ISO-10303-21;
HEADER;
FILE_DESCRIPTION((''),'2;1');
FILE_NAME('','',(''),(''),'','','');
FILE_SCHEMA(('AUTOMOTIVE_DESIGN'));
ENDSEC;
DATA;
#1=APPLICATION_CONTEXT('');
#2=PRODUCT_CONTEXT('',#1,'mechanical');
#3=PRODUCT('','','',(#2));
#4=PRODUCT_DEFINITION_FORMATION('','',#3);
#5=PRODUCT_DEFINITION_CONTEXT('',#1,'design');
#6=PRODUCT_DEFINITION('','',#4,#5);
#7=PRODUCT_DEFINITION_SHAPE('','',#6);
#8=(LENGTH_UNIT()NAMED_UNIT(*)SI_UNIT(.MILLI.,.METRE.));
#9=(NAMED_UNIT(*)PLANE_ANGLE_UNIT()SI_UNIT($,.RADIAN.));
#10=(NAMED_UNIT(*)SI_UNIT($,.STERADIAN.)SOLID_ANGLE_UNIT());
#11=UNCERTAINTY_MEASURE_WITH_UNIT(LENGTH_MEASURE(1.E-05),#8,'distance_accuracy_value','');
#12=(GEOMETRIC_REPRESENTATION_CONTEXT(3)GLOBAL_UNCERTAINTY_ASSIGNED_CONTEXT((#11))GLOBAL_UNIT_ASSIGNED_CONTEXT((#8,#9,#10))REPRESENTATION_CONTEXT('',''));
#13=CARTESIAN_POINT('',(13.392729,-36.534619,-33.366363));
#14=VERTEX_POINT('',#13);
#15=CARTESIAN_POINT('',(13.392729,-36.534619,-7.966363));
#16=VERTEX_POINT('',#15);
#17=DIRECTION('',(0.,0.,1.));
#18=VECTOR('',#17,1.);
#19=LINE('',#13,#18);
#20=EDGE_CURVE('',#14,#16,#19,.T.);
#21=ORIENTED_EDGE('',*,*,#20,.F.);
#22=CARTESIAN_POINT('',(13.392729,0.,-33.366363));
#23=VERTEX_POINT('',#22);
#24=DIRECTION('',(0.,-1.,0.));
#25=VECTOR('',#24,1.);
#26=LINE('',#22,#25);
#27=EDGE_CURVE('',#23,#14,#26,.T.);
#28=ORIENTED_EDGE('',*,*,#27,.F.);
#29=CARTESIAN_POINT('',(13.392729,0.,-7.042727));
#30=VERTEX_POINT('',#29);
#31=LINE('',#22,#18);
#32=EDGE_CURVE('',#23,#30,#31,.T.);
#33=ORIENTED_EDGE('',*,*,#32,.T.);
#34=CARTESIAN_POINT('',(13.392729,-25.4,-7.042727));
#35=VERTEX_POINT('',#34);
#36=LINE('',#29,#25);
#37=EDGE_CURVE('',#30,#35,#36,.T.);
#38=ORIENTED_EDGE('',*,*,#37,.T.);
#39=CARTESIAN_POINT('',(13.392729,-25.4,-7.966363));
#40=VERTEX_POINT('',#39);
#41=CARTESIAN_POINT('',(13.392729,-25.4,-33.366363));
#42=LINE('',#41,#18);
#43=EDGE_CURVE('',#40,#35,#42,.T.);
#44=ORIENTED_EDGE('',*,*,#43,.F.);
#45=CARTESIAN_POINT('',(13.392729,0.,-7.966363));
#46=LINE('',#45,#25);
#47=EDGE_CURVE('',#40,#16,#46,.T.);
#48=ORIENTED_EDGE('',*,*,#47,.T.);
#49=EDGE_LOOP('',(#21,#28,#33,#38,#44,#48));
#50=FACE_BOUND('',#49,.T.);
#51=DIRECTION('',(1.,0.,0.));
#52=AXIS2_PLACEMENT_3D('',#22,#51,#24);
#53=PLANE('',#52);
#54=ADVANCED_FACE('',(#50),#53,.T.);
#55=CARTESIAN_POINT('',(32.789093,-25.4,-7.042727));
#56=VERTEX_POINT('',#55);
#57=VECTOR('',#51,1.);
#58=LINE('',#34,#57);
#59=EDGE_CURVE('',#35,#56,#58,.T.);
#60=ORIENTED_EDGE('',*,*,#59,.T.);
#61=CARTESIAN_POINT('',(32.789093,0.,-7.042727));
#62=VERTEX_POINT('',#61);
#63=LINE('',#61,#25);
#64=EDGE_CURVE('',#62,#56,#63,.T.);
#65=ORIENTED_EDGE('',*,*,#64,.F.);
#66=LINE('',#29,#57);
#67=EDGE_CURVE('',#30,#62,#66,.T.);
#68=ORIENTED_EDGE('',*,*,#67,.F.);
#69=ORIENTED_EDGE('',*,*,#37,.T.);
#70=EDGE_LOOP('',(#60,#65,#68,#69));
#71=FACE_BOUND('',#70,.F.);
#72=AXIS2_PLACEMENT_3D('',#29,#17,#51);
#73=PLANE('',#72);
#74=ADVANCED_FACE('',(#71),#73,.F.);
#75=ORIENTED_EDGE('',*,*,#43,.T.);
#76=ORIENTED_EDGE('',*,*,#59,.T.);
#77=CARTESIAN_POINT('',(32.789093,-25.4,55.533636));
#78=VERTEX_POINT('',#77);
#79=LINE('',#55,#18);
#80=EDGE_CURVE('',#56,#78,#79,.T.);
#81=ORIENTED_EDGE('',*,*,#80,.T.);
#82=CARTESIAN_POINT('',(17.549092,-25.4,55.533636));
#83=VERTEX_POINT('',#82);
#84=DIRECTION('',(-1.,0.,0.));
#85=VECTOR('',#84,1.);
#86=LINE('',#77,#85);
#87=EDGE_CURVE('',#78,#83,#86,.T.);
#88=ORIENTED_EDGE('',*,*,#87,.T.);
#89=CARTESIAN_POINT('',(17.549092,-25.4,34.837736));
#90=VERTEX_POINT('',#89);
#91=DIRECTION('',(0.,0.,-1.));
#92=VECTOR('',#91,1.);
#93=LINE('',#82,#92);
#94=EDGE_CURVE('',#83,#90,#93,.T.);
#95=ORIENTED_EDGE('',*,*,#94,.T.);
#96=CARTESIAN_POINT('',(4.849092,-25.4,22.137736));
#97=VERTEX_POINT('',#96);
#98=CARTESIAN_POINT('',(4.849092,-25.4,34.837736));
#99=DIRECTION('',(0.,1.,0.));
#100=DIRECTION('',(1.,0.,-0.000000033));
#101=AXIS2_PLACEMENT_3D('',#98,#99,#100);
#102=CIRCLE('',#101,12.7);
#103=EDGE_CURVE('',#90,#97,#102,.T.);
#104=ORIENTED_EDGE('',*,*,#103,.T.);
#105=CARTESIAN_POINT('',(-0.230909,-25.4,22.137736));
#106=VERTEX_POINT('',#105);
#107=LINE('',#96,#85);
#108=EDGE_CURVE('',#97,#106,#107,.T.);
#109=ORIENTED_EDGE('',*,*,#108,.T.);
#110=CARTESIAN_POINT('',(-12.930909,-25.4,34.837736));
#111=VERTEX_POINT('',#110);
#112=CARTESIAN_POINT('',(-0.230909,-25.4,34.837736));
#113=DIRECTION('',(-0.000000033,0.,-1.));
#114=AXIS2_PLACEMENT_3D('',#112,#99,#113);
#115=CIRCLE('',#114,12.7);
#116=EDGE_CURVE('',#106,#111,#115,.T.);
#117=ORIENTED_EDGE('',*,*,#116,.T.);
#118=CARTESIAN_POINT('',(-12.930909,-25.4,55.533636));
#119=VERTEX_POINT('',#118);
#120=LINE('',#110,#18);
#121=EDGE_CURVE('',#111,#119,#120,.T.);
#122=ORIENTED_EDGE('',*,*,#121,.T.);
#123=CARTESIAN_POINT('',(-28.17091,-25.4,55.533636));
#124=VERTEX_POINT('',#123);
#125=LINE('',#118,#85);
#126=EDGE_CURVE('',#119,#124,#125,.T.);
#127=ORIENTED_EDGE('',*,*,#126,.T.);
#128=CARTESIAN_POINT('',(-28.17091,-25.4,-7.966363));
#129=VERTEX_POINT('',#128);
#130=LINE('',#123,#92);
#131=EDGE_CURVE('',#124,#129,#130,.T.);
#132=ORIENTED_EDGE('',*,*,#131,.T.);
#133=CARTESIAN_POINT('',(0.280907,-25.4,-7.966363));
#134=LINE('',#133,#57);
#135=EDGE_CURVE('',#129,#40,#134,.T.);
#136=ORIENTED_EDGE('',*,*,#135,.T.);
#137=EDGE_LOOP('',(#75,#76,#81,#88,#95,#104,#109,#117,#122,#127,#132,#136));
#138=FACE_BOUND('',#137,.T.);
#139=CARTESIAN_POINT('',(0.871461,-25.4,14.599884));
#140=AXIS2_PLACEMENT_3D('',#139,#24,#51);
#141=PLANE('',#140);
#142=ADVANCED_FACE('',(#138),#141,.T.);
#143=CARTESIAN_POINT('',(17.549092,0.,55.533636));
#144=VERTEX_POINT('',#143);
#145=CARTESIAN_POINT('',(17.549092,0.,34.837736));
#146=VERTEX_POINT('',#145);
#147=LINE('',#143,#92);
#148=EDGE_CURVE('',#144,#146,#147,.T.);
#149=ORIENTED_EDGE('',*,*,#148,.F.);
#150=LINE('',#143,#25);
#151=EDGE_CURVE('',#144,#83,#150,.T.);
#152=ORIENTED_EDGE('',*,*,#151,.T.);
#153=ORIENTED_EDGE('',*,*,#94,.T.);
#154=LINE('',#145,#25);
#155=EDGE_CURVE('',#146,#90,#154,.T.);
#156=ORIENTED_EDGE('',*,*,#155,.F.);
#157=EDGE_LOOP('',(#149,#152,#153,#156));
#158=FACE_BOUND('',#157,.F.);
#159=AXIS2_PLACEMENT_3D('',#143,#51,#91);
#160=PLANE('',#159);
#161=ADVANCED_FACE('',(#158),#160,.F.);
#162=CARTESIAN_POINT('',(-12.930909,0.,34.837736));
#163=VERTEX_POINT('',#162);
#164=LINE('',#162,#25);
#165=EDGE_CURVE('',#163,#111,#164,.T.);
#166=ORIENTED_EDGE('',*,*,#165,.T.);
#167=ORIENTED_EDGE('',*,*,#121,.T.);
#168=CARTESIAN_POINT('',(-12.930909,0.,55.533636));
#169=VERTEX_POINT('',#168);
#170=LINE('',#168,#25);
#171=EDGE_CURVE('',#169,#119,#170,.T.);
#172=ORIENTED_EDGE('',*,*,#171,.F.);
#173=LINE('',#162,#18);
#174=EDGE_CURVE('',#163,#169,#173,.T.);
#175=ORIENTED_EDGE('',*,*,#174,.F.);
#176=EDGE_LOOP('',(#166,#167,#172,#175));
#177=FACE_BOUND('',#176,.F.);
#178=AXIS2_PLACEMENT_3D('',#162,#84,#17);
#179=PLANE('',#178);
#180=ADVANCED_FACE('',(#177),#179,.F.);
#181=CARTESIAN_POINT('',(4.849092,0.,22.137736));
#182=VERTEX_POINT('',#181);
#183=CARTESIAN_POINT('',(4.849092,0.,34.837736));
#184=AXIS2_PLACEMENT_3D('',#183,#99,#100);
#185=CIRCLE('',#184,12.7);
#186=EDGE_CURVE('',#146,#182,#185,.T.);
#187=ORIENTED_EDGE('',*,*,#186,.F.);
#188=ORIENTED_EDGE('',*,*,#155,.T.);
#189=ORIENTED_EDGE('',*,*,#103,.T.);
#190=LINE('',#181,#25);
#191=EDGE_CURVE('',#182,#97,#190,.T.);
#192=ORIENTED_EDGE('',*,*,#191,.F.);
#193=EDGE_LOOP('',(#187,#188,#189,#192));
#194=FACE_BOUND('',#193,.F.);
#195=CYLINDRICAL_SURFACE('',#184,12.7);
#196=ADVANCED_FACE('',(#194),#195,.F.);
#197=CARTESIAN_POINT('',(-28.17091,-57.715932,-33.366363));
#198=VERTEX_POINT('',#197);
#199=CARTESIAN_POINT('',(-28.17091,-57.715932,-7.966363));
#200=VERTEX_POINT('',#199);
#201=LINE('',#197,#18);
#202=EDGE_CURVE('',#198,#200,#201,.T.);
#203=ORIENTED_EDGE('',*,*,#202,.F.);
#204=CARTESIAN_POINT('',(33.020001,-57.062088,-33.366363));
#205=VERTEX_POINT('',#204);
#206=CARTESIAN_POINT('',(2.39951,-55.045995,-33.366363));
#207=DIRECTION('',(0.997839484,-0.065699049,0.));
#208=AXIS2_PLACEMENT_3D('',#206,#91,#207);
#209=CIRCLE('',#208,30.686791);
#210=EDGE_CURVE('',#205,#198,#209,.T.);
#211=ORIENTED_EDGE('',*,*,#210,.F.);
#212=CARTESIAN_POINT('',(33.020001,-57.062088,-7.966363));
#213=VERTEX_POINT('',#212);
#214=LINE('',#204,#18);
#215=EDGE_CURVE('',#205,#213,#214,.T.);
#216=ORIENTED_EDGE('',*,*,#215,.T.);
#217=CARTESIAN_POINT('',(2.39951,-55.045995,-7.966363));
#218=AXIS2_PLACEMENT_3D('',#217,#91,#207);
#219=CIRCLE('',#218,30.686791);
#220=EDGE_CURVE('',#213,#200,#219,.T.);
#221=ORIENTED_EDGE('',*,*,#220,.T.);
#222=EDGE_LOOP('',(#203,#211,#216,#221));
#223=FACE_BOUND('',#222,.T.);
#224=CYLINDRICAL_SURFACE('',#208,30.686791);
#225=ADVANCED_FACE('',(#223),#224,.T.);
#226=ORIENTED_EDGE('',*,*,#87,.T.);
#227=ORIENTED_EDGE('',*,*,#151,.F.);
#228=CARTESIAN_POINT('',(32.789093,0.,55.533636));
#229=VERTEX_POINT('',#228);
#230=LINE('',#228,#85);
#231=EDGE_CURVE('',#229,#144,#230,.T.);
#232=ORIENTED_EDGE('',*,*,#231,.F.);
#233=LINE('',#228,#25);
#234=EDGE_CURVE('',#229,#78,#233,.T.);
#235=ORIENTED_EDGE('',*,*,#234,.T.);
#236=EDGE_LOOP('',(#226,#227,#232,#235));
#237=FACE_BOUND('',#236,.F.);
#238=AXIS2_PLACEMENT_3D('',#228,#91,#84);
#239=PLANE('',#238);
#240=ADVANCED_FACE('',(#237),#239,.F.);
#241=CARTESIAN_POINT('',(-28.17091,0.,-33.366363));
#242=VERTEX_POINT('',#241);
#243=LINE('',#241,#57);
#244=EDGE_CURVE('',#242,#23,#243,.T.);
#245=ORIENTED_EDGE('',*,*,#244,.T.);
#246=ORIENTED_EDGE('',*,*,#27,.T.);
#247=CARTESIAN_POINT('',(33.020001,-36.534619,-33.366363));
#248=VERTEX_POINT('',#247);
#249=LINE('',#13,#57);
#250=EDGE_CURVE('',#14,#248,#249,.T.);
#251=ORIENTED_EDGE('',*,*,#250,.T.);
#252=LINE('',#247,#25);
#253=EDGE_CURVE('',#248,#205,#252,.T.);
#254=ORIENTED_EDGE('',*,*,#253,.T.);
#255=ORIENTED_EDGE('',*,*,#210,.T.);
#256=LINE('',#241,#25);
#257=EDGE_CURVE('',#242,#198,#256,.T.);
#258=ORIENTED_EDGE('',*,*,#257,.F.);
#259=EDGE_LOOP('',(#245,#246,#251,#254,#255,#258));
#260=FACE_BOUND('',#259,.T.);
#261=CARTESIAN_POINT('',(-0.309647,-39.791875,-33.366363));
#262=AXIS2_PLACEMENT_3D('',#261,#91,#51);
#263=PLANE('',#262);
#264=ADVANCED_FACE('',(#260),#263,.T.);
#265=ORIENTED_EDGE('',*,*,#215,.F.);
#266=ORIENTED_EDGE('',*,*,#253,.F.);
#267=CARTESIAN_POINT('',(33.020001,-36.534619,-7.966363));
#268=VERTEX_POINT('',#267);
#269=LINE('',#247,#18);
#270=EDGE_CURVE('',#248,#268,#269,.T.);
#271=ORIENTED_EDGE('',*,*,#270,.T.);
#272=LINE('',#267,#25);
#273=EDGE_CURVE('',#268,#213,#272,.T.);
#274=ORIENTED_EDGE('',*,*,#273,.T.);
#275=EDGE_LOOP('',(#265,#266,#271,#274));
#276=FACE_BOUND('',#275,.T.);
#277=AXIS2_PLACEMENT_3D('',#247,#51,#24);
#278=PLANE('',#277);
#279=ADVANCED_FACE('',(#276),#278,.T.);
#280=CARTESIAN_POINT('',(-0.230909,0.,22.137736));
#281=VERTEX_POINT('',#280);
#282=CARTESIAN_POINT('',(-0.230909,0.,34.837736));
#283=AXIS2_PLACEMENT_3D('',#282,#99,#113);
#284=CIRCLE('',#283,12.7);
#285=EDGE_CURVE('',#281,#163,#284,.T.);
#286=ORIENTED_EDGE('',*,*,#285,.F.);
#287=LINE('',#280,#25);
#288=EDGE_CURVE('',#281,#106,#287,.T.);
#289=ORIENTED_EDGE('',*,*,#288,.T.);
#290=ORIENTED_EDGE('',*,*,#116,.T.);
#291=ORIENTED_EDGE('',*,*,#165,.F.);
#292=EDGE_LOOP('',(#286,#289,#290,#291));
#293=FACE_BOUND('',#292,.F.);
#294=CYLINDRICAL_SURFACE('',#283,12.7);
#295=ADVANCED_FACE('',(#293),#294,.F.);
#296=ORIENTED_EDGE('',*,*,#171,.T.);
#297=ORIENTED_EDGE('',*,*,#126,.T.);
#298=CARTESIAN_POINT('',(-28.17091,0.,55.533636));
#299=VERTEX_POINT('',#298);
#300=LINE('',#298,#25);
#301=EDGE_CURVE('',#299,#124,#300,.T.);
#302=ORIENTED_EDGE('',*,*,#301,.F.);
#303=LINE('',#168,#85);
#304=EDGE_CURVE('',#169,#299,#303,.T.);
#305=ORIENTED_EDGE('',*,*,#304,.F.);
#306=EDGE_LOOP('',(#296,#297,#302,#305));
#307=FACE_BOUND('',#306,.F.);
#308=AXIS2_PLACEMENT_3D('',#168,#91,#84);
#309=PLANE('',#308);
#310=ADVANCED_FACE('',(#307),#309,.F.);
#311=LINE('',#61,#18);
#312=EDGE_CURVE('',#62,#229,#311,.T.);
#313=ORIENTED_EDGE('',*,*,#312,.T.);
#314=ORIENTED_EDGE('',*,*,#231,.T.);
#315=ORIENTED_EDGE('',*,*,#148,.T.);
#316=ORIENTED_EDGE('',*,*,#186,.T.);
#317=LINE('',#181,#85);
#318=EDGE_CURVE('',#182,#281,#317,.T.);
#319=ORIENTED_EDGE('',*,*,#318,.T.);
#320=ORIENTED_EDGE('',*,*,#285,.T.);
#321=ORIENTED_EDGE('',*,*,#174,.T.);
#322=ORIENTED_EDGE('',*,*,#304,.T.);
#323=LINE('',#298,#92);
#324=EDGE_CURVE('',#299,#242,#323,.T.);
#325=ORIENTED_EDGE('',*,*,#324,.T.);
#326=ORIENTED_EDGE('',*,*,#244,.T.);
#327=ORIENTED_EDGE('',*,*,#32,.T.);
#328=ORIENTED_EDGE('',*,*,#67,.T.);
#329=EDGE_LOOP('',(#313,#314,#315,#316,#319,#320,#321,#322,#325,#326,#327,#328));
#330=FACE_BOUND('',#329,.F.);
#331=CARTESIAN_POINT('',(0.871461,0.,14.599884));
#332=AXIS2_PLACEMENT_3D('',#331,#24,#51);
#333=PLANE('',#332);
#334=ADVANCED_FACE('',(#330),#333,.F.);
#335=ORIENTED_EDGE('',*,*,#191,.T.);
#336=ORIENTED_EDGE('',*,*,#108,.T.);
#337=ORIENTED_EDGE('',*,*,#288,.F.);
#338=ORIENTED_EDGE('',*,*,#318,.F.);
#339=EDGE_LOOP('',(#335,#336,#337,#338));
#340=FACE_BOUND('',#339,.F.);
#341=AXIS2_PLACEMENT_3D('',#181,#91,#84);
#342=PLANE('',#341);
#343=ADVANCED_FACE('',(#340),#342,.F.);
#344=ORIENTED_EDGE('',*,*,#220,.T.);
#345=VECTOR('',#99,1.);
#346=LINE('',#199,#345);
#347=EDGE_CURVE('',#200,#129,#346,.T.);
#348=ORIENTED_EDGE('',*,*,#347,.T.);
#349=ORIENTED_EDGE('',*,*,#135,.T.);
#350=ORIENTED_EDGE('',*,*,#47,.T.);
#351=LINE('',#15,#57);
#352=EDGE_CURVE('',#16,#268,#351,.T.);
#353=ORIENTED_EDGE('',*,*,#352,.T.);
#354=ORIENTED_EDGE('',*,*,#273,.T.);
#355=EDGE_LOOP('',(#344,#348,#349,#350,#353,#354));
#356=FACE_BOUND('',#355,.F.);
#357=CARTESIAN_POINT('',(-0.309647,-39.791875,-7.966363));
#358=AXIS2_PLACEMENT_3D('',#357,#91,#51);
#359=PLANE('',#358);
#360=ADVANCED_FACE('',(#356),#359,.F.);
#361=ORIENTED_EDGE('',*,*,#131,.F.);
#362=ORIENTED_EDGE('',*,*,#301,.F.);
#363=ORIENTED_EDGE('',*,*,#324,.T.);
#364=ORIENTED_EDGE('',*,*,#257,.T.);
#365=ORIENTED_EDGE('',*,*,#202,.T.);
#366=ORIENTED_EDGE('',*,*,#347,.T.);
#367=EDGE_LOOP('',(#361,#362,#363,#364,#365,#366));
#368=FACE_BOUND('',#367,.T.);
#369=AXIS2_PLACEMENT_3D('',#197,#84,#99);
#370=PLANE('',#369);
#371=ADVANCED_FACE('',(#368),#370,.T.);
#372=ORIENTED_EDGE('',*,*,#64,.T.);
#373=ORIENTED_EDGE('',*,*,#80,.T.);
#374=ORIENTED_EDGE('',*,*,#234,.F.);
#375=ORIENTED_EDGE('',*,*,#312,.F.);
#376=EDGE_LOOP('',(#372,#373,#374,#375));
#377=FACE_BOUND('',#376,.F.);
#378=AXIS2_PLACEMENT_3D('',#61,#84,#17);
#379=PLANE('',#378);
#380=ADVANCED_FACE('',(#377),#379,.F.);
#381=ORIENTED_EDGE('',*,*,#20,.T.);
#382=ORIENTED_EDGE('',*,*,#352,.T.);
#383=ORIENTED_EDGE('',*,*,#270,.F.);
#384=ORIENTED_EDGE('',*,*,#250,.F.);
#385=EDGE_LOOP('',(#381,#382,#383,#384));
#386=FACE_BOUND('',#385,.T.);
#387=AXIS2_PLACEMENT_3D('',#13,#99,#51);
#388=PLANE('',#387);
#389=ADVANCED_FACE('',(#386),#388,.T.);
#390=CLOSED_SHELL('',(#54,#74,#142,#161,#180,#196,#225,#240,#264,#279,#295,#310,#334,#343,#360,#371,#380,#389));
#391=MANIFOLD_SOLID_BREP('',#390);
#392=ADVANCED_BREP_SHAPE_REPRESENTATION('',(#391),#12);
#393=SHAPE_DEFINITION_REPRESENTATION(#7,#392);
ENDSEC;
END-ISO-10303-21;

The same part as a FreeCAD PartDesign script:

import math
import FreeCAD as App
import Part
import Sketcher

V = App.Vector
Q = App.Units.Quantity

doc = App.newDocument("Part")
body = doc.addObject("PartDesign::Body", "Body")

# Sketch on XZ plane
sketch1 = doc.addObject("Sketcher::SketchObject", "Sketch")
body.addObject(sketch1)
sketch1.AttachmentSupport = (doc.XZ_Plane, [""])
sketch1.MapMode = "FlatFace"
sketch1.addGeometry([
    Part.LineSegment(V(-28.17091, 55.533636, 0), V(-28.17091, -33.366363, 0)),  # 0
    Part.LineSegment(V(-28.17091, -33.366363, 0), V(13.392729, -33.366363, 0)),  # 1
    Part.LineSegment(V(13.392729, -33.366363, 0), V(13.392729, -7.042727, 0)),  # 2
    Part.LineSegment(V(13.392729, -7.042727, 0), V(32.789093, -7.042727, 0)),  # 3
    Part.LineSegment(V(32.789093, -7.042727, 0), V(32.789093, 55.533636, 0)),  # 4
    Part.LineSegment(V(32.789093, 55.533636, 0), V(17.549092, 55.533636, 0)),  # 5
    Part.LineSegment(V(17.549092, 55.533636, 0), V(17.549092, 34.837736, 0)),  # 6
    Part.ArcOfCircle(Part.Circle(V(4.849092, 34.837736, 0), V(0, 0, 1), 12.7), math.radians(-89.999998), math.radians(-0.000002)),  # 7
    Part.LineSegment(V(4.849092, 22.137736, 0), V(-0.230909, 22.137736, 0)),  # 8
    Part.ArcOfCircle(Part.Circle(V(-0.230909, 34.837736, 0), V(0, 0, 1), 12.7), math.radians(-179.999998), math.radians(-90.000002)),  # 9
    Part.LineSegment(V(-12.930909, 34.837736, 0), V(-12.930909, 55.533636, 0)),  # 10
    Part.LineSegment(V(-12.930909, 55.533636, 0), V(-28.17091, 55.533636, 0)),  # 11
], False)
sketch1.addConstraint([
    Sketcher.Constraint("Coincident", 0, 2, 1, 1),
    Sketcher.Constraint("Coincident", 1, 2, 2, 1),
    Sketcher.Constraint("Coincident", 2, 2, 3, 1),
    Sketcher.Constraint("Coincident", 3, 2, 4, 1),
    Sketcher.Constraint("Coincident", 4, 2, 5, 1),
    Sketcher.Constraint("Coincident", 5, 2, 6, 1),
    Sketcher.Constraint("Tangent", 6, 2, 7, 2),
    Sketcher.Constraint("Tangent", 7, 1, 8, 1),
    Sketcher.Constraint("Tangent", 8, 2, 9, 2),
    Sketcher.Constraint("Tangent", 9, 1, 10, 1),
    Sketcher.Constraint("Coincident", 10, 2, 11, 1),
    Sketcher.Constraint("Coincident", 11, 2, 0, 1),
    Sketcher.Constraint("Vertical", 0),
    Sketcher.Constraint("Horizontal", 1),
    Sketcher.Constraint("Vertical", 2),
    Sketcher.Constraint("Horizontal", 3),
    Sketcher.Constraint("Vertical", 4),
    Sketcher.Constraint("Horizontal", 5),
    Sketcher.Constraint("Vertical", 6),
    Sketcher.Constraint("Horizontal", 8),
    Sketcher.Constraint("Vertical", 10),
    Sketcher.Constraint("Horizontal", 11),
    Sketcher.Constraint("Equal", 7, 9),
    Sketcher.Constraint("Horizontal", 5, 2, 10, 2),
    Sketcher.Constraint("Equal", 5, 11),
    Sketcher.Constraint("Radius", 7, Q("0.5 in")),
    Sketcher.Constraint("DistanceX", 5, 2, 5, 1, Q("0.6 in")),
    Sketcher.Constraint("DistanceX", 8, 2, 8, 1, Q("0.2 in")),
    Sketcher.Constraint("DistanceY", 0, 2, 0, 1, Q("3.5 in")),
    Sketcher.Constraint("DistanceY", 6, 2, 6, 1, 20.6959),
    Sketcher.Constraint("DistanceX", 1, 1, 1, 2, 41.563639),
    Sketcher.Constraint("DistanceY", 2, 1, 2, 2, 26.323636),
    Sketcher.Constraint("DistanceX", -1, 1, 7, 3, 4.849092),
    Sketcher.Constraint("DistanceY", -1, 1, 7, 3, 34.837736),
])
pad1 = doc.addObject("PartDesign::Pad", "Pad")
body.addObject(pad1)
pad1.Profile = sketch1
pad1.Length = Q("1 in")

# Sketch on XY plane
sketch2 = doc.addObject("Sketcher::SketchObject", "Sketch001")
body.addObject(sketch2)
sketch2.AttachmentSupport = (doc.XY_Plane, [""])
sketch2.MapMode = "FlatFace"
sketch2.AttachmentOffset = App.Placement(V(0, 0, -33.366363), App.Rotation())
sketch2.addGeometry([
    Part.LineSegment(V(-28.17091, -57.715932, 0), V(-28.17091, 0, 0)),  # 0
    Part.LineSegment(V(-28.17091, 0, 0), V(13.392729, 0, 0)),  # 1
    Part.LineSegment(V(13.392729, 0, 0), V(13.392729, -36.534619, 0)),  # 2
    Part.LineSegment(V(13.392729, -36.534619, 0), V(33.020001, -36.534619, 0)),  # 3
    Part.LineSegment(V(33.020001, -36.534619, 0), V(33.020001, -57.062088, 0)),  # 4
    Part.ArcOfCircle(Part.Circle(V(2.39951, -55.045995, 0), V(0, 0, 1), 30.686791), math.radians(-175.008608), math.radians(-3.766992)),  # 5
], False)
sketch2.addConstraint([
    Sketcher.Constraint("Coincident", 0, 2, 1, 1),
    Sketcher.Constraint("Coincident", 1, 2, 2, 1),
    Sketcher.Constraint("Coincident", 2, 2, 3, 1),
    Sketcher.Constraint("Coincident", 3, 2, 4, 1),
    Sketcher.Constraint("Coincident", 4, 2, 5, 2),
    Sketcher.Constraint("Coincident", 5, 1, 0, 1),
    Sketcher.Constraint("Vertical", 0),
    Sketcher.Constraint("Horizontal", 1),
    Sketcher.Constraint("Vertical", 2),
    Sketcher.Constraint("Horizontal", 3),
    Sketcher.Constraint("Vertical", 4),
    Sketcher.Constraint("PointOnObject", 0, 2, -1),
    Sketcher.Constraint("DistanceX", -1, 1, 3, 2, Q("1.3 in")),
    Sketcher.Constraint("Radius", 5, 30.686791),
    Sketcher.Constraint("DistanceX", 1, 1, 1, 2, 41.563639),
    Sketcher.Constraint("DistanceY", 2, 2, 2, 1, 36.534619),
    Sketcher.Constraint("DistanceY", 4, 2, 4, 1, 20.527469),
    Sketcher.Constraint("DistanceX", 3, 1, 3, 2, 19.627272),
    Sketcher.Constraint("DistanceY", 0, 1, 0, 2, 57.715932),
])
pad2 = doc.addObject("PartDesign::Pad", "Pad001")
body.addObject(pad2)
pad2.Profile = sketch2
pad2.Length = Q("1 in")

doc.recompute()
